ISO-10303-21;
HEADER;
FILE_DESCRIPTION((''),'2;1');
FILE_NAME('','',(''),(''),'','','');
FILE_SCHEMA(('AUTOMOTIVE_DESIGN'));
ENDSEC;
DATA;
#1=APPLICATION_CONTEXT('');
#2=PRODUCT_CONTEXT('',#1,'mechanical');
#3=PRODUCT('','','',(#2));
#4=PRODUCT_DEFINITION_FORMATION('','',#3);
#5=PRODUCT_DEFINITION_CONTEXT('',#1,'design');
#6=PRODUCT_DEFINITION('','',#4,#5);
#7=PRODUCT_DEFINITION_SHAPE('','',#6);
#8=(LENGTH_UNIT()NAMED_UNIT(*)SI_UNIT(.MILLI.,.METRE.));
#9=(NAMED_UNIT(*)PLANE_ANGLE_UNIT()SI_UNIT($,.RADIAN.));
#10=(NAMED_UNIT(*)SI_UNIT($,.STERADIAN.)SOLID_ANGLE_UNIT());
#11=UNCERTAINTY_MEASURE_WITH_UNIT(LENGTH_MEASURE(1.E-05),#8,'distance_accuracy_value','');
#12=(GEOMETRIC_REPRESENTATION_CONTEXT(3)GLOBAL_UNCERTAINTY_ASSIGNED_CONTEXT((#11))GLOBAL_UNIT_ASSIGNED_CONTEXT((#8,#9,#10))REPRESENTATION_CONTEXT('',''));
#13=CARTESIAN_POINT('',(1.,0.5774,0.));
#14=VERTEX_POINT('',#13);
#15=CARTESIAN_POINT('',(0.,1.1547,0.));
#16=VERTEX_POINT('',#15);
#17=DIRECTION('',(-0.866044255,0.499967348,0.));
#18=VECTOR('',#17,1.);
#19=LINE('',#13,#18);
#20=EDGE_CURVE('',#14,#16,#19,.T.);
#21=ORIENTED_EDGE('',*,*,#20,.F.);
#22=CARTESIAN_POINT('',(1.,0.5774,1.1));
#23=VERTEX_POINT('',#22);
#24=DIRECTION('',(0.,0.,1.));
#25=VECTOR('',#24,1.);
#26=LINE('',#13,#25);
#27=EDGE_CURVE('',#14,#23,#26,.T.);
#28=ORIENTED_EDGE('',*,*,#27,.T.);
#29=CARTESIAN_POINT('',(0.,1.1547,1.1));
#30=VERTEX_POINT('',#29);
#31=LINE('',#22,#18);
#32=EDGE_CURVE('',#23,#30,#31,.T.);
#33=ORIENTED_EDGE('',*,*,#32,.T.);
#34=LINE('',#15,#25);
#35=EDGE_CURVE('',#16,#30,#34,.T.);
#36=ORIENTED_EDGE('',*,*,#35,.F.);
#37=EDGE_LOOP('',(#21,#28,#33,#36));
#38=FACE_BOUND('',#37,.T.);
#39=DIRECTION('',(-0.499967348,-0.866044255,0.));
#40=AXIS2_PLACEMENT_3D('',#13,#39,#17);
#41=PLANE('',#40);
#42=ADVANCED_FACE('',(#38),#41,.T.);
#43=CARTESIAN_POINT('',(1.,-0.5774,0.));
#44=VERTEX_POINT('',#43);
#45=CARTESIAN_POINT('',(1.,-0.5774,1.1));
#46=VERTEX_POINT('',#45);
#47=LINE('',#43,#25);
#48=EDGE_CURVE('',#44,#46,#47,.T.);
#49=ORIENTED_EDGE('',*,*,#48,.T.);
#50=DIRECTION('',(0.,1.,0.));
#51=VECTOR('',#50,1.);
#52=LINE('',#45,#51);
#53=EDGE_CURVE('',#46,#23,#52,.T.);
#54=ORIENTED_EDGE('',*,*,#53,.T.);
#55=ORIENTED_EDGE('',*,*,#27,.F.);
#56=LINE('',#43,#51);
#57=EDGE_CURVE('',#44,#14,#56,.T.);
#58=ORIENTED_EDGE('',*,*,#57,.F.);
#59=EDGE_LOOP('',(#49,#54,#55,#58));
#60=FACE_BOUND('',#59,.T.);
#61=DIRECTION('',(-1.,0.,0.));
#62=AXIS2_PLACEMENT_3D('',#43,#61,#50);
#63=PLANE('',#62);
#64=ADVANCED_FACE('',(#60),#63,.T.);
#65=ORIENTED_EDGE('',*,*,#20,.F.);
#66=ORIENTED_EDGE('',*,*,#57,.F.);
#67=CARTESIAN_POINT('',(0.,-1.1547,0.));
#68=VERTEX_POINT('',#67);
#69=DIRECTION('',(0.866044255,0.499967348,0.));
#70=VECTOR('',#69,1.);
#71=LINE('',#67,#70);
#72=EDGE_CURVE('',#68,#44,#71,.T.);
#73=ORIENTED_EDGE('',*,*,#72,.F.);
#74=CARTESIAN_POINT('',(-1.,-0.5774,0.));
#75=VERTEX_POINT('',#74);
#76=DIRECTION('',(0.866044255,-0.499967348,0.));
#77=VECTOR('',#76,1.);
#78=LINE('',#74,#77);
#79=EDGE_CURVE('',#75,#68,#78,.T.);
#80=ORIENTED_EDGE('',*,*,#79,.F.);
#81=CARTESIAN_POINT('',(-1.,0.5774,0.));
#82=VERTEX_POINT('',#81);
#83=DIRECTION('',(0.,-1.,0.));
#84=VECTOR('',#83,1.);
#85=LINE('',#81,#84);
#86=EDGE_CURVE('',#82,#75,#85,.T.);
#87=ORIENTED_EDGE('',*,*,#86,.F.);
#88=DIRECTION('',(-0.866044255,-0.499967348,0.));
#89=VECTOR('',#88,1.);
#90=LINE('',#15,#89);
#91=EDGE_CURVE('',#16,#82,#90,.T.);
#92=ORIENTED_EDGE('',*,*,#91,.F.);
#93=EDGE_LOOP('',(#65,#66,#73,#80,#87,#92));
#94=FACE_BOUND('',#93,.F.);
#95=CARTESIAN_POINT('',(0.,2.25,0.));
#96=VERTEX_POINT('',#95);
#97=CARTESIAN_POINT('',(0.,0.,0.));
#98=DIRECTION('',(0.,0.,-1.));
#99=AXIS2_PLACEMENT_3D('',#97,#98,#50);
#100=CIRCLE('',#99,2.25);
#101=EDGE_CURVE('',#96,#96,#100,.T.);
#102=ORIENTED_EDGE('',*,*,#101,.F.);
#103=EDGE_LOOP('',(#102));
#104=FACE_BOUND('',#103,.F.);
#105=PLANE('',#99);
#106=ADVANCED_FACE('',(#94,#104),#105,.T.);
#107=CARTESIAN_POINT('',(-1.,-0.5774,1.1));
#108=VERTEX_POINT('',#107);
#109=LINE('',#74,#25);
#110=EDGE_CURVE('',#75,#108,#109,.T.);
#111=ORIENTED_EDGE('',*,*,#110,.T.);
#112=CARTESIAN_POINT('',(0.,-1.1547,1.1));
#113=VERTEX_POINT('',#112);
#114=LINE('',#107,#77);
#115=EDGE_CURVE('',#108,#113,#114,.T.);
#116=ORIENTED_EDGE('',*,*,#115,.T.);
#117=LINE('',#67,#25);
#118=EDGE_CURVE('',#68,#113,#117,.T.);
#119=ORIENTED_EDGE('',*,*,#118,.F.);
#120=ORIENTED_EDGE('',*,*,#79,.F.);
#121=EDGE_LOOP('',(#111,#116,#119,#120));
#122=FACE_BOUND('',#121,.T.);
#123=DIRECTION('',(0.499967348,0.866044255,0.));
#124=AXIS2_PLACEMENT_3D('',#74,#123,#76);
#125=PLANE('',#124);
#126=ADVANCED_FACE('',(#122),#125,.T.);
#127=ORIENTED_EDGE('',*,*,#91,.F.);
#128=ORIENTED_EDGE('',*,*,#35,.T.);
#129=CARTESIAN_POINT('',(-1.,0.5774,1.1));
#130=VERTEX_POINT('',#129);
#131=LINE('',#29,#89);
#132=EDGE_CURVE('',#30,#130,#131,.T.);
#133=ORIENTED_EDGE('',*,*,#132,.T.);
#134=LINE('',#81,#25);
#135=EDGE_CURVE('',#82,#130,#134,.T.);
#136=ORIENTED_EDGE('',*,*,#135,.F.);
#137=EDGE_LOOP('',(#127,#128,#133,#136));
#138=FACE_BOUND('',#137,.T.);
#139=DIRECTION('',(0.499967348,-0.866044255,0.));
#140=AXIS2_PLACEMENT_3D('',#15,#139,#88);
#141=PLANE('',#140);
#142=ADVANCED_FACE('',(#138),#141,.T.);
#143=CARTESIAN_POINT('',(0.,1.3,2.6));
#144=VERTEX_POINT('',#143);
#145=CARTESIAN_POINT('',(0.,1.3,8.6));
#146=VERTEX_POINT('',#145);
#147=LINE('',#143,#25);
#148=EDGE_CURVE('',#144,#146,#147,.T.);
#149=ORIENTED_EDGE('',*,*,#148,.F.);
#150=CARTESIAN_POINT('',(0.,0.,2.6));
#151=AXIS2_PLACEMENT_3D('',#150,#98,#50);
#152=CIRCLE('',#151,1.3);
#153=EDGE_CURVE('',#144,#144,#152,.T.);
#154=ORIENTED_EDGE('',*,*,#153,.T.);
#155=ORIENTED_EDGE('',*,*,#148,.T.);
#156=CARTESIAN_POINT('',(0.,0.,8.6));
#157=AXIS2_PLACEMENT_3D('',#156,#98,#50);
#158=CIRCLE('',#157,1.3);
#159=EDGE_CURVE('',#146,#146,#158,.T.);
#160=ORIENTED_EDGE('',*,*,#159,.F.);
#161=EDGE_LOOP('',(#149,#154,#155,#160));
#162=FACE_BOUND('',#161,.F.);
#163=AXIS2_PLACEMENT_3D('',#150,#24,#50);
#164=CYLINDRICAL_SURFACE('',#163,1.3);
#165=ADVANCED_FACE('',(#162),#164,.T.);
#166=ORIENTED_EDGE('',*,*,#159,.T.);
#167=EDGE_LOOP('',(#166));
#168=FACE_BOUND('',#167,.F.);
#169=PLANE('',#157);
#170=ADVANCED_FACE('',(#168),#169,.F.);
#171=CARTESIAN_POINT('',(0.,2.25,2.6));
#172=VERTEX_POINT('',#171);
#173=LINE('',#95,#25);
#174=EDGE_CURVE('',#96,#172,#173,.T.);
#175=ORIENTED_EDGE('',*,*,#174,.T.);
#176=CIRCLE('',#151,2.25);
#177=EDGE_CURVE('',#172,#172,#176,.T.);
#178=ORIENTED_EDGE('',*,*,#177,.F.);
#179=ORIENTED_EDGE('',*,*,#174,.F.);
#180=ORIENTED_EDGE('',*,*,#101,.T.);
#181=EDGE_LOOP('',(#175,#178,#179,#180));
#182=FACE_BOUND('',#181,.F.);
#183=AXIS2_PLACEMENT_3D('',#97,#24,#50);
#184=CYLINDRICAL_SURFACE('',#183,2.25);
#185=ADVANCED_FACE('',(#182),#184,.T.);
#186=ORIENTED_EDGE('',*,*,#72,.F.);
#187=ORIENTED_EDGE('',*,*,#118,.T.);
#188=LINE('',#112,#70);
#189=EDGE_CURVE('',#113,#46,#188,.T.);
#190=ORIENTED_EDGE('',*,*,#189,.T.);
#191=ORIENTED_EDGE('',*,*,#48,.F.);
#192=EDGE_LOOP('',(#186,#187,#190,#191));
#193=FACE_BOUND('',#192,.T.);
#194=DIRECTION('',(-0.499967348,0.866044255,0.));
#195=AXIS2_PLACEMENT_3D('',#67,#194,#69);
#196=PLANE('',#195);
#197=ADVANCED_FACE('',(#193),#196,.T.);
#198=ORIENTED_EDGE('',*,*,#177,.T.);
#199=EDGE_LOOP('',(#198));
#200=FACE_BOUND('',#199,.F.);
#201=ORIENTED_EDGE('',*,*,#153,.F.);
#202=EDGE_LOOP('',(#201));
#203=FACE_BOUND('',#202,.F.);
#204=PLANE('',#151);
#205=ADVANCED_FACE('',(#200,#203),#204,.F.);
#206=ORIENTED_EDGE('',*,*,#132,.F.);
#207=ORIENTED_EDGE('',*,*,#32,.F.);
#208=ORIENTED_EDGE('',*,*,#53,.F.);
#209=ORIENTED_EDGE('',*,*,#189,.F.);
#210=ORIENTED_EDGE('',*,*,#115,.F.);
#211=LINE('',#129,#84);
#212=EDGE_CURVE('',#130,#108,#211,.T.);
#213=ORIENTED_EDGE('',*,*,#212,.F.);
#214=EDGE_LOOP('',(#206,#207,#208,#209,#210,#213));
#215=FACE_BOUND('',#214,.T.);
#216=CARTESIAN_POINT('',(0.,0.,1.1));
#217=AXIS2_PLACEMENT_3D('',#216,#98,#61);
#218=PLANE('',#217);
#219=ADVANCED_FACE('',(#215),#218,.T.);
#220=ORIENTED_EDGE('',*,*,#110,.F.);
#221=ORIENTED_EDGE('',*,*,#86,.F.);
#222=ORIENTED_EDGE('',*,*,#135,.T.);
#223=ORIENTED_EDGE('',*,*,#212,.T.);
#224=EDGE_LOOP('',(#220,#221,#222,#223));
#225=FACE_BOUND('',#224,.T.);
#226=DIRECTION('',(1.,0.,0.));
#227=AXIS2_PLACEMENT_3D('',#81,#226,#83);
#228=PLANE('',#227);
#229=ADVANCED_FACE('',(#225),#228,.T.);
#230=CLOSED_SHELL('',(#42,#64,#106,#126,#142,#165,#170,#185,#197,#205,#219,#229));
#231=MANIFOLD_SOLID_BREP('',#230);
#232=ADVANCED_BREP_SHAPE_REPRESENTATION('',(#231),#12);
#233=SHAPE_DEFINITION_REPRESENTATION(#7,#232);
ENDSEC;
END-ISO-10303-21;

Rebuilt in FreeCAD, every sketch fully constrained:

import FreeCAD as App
import Part
import Sketcher

V = App.Vector

doc = App.newDocument("Part")
body = doc.addObject("PartDesign::Body", "Body")

# Sketch on YZ plane
sketch1 = body.newObject("Sketcher::SketchObject", "Sketch")
sketch1.AttachmentSupport = (doc.getObject("YZ_Plane"), [""])
sketch1.MapMode = "FlatFace"
sketch1.addGeometry(Part.LineSegment(V(1.3, 8.6, 0), V(0, 8.6, 0)), False)
sketch1.addGeometry(Part.LineSegment(V(0, 8.6, 0), V(0, 0, 0)), False)
sketch1.addGeometry(Part.LineSegment(V(0, 0, 0), V(2.25, 0, 0)), False)
sketch1.addGeometry(Part.LineSegment(V(2.25, 0, 0), V(2.25, 2.6, 0)), False)
sketch1.addGeometry(Part.LineSegment(V(2.25, 2.6, 0), V(1.3, 2.6, 0)), False)
sketch1.addGeometry(Part.LineSegment(V(1.3, 2.6, 0), V(1.3, 8.6, 0)), False)
sketch1.addConstraint(Sketcher.Constraint("Coincident", 0, 2, 1, 1))
sketch1.addConstraint(Sketcher.Constraint("Coincident", 1, 2, 2, 1))
sketch1.addConstraint(Sketcher.Constraint("Coincident", 2, 2, 3, 1))
sketch1.addConstraint(Sketcher.Constraint("Coincident", 3, 2, 4, 1))
sketch1.addConstraint(Sketcher.Constraint("Coincident", 4, 2, 5, 1))
sketch1.addConstraint(Sketcher.Constraint("Coincident", 5, 2, 0, 1))
sketch1.addConstraint(Sketcher.Constraint("Horizontal", 0))
sketch1.addConstraint(Sketcher.Constraint("Vertical", 1))
sketch1.addConstraint(Sketcher.Constraint("Horizontal", 2))
sketch1.addConstraint(Sketcher.Constraint("Vertical", 3))
sketch1.addConstraint(Sketcher.Constraint("Horizontal", 4))
sketch1.addConstraint(Sketcher.Constraint("Vertical", 5))
sketch1.addConstraint(Sketcher.Constraint("Coincident", 1, 2, -1, 1))
sketch1.addConstraint(Sketcher.Constraint("DistanceY", 5, 1, 5, 2, 6.0))
sketch1.addConstraint(Sketcher.Constraint("DistanceY", 3, 1, 3, 2, 2.6))
sketch1.addConstraint(Sketcher.Constraint("DistanceX", 0, 2, 0, 1, 1.3))
sketch1.addConstraint(Sketcher.Constraint("DistanceX", 2, 1, 2, 2, 2.25))
revolution = body.newObject("PartDesign::Revolution", "Revolution")
revolution.Profile = sketch1
revolution.ReferenceAxis = (sketch1, ["V_Axis"])
revolution.Angle = 360

# Sketch on XY plane
sketch2 = body.newObject("Sketcher::SketchObject", "Sketch001")
sketch2.AttachmentSupport = (doc.getObject("XY_Plane"), [""])
sketch2.MapMode = "FlatFace"
sketch2.addGeometry(Part.LineSegment(V(-1, 0.5774, 0), V(0, 1.1547, 0)), False)
sketch2.addGeometry(Part.LineSegment(V(0, 1.1547, 0), V(1, 0.5774, 0)), False)
sketch2.addGeometry(Part.LineSegment(V(1, 0.5774, 0), V(1, -0.5774, 0)), False)
sketch2.addGeometry(Part.LineSegment(V(1, -0.5774, 0), V(0, -1.1547, 0)), False)
sketch2.addGeometry(Part.LineSegment(V(0, -1.1547, 0), V(-1, -0.5774, 0)), False)
sketch2.addGeometry(Part.LineSegment(V(-1, -0.5774, 0), V(-1, 0.5774, 0)), False)
sketch2.addConstraint(Sketcher.Constraint("Coincident", 0, 2, 1, 1))
sketch2.addConstraint(Sketcher.Constraint("Coincident", 1, 2, 2, 1))
sketch2.addConstraint(Sketcher.Constraint("Coincident", 2, 2, 3, 1))
sketch2.addConstraint(Sketcher.Constraint("Coincident", 3, 2, 4, 1))
sketch2.addConstraint(Sketcher.Constraint("Coincident", 4, 2, 5, 1))
sketch2.addConstraint(Sketcher.Constraint("Coincident", 5, 2, 0, 1))
sketch2.addConstraint(Sketcher.Constraint("Vertical", 2))
sketch2.addConstraint(Sketcher.Constraint("Vertical", 5))
sketch2.addConstraint(Sketcher.Constraint("Symmetric", 0, 2, 3, 2, -1, 1))
sketch2.addConstraint(Sketcher.Constraint("Symmetric", 1, 2, 4, 2, -1, 1))
sketch2.addConstraint(Sketcher.Constraint("PointOnObject", 0, 2, -2))
sketch2.addConstraint(Sketcher.Constraint("Parallel", 0, 3))
sketch2.addConstraint(Sketcher.Constraint("Horizontal", 2, 2, 4, 2))
sketch2.addConstraint(Sketcher.Constraint("DistanceX", 4, 2, 2, 2, 2.0))
sketch2.addConstraint(Sketcher.Constraint("DistanceY", 2, 2, 2, 1, 1.1548))
sketch2.addConstraint(Sketcher.Constraint("DistanceY", 2, 2, 0, 2, 1.732))
pocket1 = body.newObject("PartDesign::Pocket", "Pocket")
pocket1.Profile = sketch2
pocket1.Length = 1.1
pocket1.Reversed = True

doc.recompute()
